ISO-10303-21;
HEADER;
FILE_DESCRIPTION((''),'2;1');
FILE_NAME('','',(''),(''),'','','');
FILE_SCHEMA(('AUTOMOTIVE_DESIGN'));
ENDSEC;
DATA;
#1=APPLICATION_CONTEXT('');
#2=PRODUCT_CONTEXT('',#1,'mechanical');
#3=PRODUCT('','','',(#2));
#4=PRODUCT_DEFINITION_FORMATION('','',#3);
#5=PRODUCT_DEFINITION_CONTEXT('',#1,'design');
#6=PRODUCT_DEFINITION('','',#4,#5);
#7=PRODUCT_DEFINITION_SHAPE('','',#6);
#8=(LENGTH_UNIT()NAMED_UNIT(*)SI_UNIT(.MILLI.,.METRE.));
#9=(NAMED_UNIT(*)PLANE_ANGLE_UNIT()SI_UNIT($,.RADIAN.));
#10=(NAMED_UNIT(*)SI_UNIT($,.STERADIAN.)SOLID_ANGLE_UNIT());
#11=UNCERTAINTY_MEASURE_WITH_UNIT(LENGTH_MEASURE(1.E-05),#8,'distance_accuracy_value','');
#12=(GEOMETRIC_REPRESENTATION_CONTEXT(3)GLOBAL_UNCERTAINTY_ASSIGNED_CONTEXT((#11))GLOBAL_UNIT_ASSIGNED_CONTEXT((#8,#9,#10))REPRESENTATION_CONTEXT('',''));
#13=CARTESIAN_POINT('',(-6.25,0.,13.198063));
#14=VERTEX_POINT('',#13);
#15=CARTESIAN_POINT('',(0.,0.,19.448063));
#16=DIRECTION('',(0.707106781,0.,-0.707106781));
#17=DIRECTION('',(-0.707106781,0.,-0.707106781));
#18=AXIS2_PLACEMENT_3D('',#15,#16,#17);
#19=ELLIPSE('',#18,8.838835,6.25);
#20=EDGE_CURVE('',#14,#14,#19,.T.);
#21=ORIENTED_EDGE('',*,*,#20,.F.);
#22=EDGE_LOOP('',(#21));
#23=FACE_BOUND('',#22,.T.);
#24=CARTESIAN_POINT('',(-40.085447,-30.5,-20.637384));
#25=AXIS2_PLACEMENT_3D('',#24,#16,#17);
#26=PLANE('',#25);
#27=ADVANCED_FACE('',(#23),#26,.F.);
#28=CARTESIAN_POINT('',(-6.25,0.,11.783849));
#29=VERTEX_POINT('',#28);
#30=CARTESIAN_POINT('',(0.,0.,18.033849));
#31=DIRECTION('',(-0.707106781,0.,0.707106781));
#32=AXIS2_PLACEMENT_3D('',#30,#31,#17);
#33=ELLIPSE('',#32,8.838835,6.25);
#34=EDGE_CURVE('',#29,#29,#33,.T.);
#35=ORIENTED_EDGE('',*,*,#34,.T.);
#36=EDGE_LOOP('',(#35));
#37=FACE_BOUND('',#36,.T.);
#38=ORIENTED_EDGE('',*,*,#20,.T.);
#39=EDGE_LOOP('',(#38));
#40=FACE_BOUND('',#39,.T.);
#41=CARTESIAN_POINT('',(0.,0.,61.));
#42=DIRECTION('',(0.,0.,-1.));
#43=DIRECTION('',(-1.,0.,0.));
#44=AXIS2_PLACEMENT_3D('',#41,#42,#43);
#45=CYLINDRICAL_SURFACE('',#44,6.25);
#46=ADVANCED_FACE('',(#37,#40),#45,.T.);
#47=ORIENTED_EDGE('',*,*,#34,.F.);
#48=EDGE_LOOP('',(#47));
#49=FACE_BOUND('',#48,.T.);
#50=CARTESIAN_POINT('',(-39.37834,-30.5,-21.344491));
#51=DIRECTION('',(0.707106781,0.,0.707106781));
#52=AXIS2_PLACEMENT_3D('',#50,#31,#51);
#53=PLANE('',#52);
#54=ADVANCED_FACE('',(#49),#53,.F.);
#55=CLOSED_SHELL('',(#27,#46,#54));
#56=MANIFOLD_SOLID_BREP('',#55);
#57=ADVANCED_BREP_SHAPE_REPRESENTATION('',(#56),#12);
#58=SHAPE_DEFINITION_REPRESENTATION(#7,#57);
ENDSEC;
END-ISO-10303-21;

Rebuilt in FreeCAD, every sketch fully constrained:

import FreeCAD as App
import Part
import Sketcher

V = App.Vector
Q = App.Units.Quantity

doc = App.newDocument("Part")
body = doc.addObject("PartDesign::Body", "Body")

# Sketch on XY plane
sketch1 = doc.addObject("Sketcher::SketchObject", "Sketch")
body.addObject(sketch1)
sketch1.AttachmentSupport = (doc.XY_Plane, [""])
sketch1.MapMode = "FlatFace"
sketch1.addGeometry(Part.Circle(V(0, 0, 0), V(0, 0, 1), 6), False)
sketch1.addConstraint([
    Sketcher.Constraint("Coincident", 0, 3, -1, 1),
    Sketcher.Constraint("Diameter", 0, Q("12.5 mm")),
])
pad1 = doc.addObject("PartDesign::Pad", "Pad")
body.addObject(pad1)
pad1.Profile = sketch1
pad1.Length = 61

# Sketch on XZ plane
sketch2 = doc.addObject("Sketcher::SketchObject", "Sketch001")
body.addObject(sketch2)
sketch2.AttachmentSupport = (doc.XZ_Plane, [""])
sketch2.MapMode = "FlatFace"
sketch2.addGeometry([
    Part.LineSegment(V(-39, -21, 0), V(33, 51, 0)),  # 0
    Part.LineSegment(V(33, 51, 0), V(33, -4, 0)),  # 1
    Part.LineSegment(V(33, -4, 0), V(-39, -21, 0)),  # 2
    Part.LineSegment(V(32, 52, 0), V(-40, -21, 0)),  # 3
    Part.LineSegment(V(-40, -21, 0), V(-30, 64, 0)),  # 4
    Part.LineSegment(V(-30, 64, 0), V(30, 64, 0)),  # 5
    Part.LineSegment(V(30, 64, 0), V(32, 52, 0)),  # 6
], False)
sketch2.addConstraint([
    Sketcher.Constraint("Coincident", 0, 2, 1, 1),
    Sketcher.Constraint("Coincident", 1, 2, 2, 1),
    Sketcher.Constraint("Coincident", 2, 2, 0, 1),
    Sketcher.Constraint("Coincident", 3, 2, 4, 1),
    Sketcher.Constraint("Coincident", 4, 2, 5, 1),
    Sketcher.Constraint("Coincident", 5, 2, 6, 1),
    Sketcher.Constraint("Coincident", 6, 2, 3, 1),
    Sketcher.Constraint("Vertical", 1),
    Sketcher.Constraint("Horizontal", 5),
    Sketcher.Constraint("Parallel", 0, 3),
    Sketcher.Constraint("Equal", 0, 3),
    Sketcher.Constraint("Angle", 0, Q("45 deg")),
    Sketcher.Constraint("Distance", 0, Q("102.282531 mm")),
    Sketcher.Constraint("DistanceX", 5, 1, 5, 2, Q("59.359176 mm")),
    Sketcher.Constraint("DistanceY", 1, 2, 1, 1, Q("54.685517 mm")),
    Sketcher.Constraint("DistanceX", -1, 1, 0, 2, Q("32.946331 mm")),
    Sketcher.Constraint("DistanceY", -1, 1, 0, 2, Q("50.98018 mm")),
    Sketcher.Constraint("DistanceY", -1, 1, 4, 2, Q("63.951978 mm")),
    Sketcher.Constraint("DistanceX", -1, 1, 5, 2, Q("29.858689 mm")),
    Sketcher.Constraint("DistanceX", 3, 2, 1, 2, Q("73.031778 mm")),
    Sketcher.Constraint("DistanceY", 6, 2, 5, 2, Q("12.264691 mm")),
])
pocket1 = doc.addObject("PartDesign::Pocket", "Pocket")
body.addObject(pocket1)
pocket1.Profile = sketch2
pocket1.Length = 61
pocket1.Midplane = True

doc.recompute()
